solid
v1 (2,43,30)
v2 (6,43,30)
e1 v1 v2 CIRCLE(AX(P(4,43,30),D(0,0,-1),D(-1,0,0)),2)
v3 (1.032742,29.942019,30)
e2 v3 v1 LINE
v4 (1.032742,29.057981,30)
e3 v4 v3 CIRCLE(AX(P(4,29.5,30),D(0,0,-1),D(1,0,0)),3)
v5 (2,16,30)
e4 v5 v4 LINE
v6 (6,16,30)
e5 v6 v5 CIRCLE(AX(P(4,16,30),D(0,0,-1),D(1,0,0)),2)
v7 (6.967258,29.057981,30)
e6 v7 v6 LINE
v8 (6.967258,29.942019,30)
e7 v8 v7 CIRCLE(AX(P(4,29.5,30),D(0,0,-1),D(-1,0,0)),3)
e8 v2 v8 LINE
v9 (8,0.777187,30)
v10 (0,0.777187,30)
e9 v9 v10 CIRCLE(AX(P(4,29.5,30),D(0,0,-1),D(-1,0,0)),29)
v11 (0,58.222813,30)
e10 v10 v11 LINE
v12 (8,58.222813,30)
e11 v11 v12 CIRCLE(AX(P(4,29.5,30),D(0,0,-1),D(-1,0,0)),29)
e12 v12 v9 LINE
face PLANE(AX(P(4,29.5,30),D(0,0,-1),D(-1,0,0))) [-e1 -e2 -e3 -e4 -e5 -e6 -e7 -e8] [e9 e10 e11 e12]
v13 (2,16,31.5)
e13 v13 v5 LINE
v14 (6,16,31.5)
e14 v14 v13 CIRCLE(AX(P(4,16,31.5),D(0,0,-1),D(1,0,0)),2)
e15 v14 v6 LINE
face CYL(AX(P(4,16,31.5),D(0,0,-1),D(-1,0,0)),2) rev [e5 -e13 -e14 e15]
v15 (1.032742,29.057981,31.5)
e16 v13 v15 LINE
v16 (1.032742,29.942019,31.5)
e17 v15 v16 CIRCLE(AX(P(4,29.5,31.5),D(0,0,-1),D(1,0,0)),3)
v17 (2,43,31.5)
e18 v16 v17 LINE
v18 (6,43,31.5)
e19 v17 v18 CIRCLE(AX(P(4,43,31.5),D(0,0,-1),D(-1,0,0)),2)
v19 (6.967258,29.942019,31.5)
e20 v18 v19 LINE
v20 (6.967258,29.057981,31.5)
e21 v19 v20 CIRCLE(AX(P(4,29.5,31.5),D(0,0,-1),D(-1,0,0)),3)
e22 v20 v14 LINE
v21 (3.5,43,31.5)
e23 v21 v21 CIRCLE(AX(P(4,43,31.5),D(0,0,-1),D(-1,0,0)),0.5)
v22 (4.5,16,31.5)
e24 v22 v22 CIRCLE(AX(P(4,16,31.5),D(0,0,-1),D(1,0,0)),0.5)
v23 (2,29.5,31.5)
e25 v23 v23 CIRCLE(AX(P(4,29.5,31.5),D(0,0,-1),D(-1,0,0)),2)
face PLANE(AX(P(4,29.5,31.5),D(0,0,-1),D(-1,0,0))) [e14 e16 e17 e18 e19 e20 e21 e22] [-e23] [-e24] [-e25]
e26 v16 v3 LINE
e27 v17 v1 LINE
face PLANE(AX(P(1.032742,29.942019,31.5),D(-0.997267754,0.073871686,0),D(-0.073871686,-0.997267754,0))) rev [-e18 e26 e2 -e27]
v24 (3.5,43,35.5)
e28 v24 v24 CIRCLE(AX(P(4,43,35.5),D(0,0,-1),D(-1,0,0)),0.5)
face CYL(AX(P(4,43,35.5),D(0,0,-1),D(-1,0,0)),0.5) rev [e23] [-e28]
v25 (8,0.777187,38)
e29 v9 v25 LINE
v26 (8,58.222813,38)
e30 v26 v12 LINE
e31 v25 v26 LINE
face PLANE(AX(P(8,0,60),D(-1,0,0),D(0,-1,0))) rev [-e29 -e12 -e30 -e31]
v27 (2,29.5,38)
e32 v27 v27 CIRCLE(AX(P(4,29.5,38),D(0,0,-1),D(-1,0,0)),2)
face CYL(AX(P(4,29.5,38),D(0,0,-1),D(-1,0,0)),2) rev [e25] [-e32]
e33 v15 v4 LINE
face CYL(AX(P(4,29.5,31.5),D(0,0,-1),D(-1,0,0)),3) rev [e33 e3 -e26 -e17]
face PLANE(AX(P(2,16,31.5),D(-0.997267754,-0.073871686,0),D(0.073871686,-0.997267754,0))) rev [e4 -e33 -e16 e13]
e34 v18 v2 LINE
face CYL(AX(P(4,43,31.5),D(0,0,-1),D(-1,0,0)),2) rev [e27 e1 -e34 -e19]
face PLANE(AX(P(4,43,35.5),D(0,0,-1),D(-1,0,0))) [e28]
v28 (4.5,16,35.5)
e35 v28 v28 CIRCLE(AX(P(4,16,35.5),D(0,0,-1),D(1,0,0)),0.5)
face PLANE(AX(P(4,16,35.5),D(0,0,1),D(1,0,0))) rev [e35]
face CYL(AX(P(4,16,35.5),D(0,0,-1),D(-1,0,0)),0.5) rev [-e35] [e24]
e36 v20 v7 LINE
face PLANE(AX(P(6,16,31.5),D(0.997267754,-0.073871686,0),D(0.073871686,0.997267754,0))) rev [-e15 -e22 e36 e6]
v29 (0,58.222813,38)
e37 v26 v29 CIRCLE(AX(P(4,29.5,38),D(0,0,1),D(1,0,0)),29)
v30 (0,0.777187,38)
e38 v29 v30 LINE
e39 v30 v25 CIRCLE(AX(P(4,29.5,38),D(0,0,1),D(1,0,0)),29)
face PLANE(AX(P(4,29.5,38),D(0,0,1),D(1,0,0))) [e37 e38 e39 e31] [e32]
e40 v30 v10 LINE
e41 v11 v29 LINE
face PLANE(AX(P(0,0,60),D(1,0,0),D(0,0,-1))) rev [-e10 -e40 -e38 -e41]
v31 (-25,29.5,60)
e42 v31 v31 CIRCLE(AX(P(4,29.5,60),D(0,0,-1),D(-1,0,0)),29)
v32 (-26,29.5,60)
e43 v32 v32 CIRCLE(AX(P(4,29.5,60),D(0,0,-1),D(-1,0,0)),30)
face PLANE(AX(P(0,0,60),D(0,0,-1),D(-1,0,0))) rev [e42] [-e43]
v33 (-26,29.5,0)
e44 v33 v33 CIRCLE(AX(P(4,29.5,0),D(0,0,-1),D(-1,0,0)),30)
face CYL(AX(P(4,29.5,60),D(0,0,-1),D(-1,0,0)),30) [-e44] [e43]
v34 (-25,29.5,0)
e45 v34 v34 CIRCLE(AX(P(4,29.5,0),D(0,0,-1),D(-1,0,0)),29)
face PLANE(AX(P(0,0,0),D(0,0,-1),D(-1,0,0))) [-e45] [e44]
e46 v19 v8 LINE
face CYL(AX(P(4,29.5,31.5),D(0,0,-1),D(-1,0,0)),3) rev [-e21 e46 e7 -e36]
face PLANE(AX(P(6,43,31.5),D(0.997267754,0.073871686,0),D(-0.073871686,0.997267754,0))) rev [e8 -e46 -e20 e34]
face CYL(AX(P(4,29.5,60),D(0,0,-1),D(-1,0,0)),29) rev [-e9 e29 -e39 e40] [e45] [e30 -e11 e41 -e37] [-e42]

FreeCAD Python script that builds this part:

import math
import FreeCAD as App
import Part
import Sketcher
Q = App.Units.Quantity


def add_polygon(sketch, points):
    """Adds a closed chain of lines whose ends are joined by coincident constraints."""
    first, n = sketch.GeometryCount, len(points)
    for a, b in zip(points, points[1:] + points[:1]):
        sketch.addGeometry(Part.LineSegment(App.Vector(*a, 0), App.Vector(*b, 0)), False)
    for i in range(n):
        sketch.addConstraint(Sketcher.Constraint("Coincident", first + i, 2, first + (i + 1) % n, 1))

doc = App.newDocument("Part")
params = doc.addObject("Spreadsheet::Sheet", "Params")
for row, (alias, value) in enumerate([
    ("sketch1_width", "8 mm"),
    ("sketch1_height", "59 mm"),
    ("pad1_length", "60 mm"),
    ("sketch2_diameter", "60 mm"),
    ("sketch2_diameter2", "58 mm"),
    ("pad2_length", "60 mm"),
    ("sketch3_diameter", "58 mm"),
    ("pocket1_length", "30 mm"),
    ("sketch4_radius", "3 mm"),
    ("sketch4_radius2", "2 mm"),
    ("pocket2_length", "1.5 mm"),
    ("sketch5_diameter", "58 mm"),
    ("pocket3_length", "22 mm"),
    ("sketch6_diameter", "4 mm"),
    ("pocket4_length", "6.5 mm"),
    ("sketch7_diameter", "1 mm"),
    ("pocket5_length", "4 mm"),
], start=1):
    params.set(f"A{row}", alias)
    params.set(f"B{row}", "=" + value)
    params.setAlias(f"B{row}", alias)

body = doc.addObject("PartDesign::Body", "Body")

# Sketch on XY plane
sketch1 = doc.addObject("Sketcher::SketchObject", "Sketch")
body.addObject(sketch1)
sketch1.AttachmentSupport = (doc.XY_Plane, [""])
sketch1.MapMode = "FlatFace"
add_polygon(sketch1, [(0, 59), (0, 0), (8, 0), (8, 59)])  # lines 0-3
sketch1.addConstraint([
    Sketcher.Constraint("Vertical", 0),
    Sketcher.Constraint("Horizontal", 1),
    Sketcher.Constraint("Vertical", 2),
    Sketcher.Constraint("Horizontal", 3),
    Sketcher.Constraint("Coincident", 0, 2, -1, 1),
    Sketcher.Constraint("DistanceX", 1, 1, 1, 2, Q("8 mm")),
    Sketcher.Constraint("DistanceY", 0, 2, 0, 1, Q("59 mm")),
])
sketch1.setExpression("Constraints[9]", "Params.sketch1_width")
sketch1.setExpression("Constraints[10]", "Params.sketch1_height")
pad1 = doc.addObject("PartDesign::Pad", "Pad")
body.addObject(pad1)
pad1.Profile = sketch1
pad1.setExpression("Length", "Params.pad1_length")

# Sketch on XY plane
sketch2 = doc.addObject("Sketcher::SketchObject", "Sketch001")
body.addObject(sketch2)
sketch2.AttachmentSupport = (doc.XY_Plane, [""])
sketch2.MapMode = "FlatFace"
sketch2.addGeometry([
    Part.Circle(App.Vector(4, 29.5, 0), App.Vector(0, 0, 1), 30),
    Part.Circle(App.Vector(4, 29.5, 0), App.Vector(0, 0, 1), 29),
], False)
sketch2.addConstraint([
    Sketcher.Constraint("Coincident", 1, 3, 0, 3),
    Sketcher.Constraint("Diameter", 0, Q("60 mm")),
    Sketcher.Constraint("Diameter", 1, Q("58 mm")),
    Sketcher.Constraint("DistanceX", -1, 1, 0, 3, Q("4 mm")),
    Sketcher.Constraint("DistanceY", -1, 1, 0, 3, Q("29.5 mm")),
])
sketch2.setExpression("Constraints[1]", "Params.sketch2_diameter")
sketch2.setExpression("Constraints[2]", "Params.sketch2_diameter2")
pad2 = doc.addObject("PartDesign::Pad", "Pad001")
body.addObject(pad2)
pad2.Profile = sketch2
pad2.setExpression("Length", "Params.pad2_length")

# Sketch on XY plane
sketch3 = doc.addObject("Sketcher::SketchObject", "Sketch002")
body.addObject(sketch3)
sketch3.AttachmentSupport = (doc.XY_Plane, [""])
sketch3.MapMode = "FlatFace"
sketch3.addGeometry(Part.Circle(App.Vector(4, 29.5, 0), App.Vector(0, 0, 1), 29), False)
sketch3.addConstraint([
    Sketcher.Constraint("Diameter", 0, Q("58 mm")),
    Sketcher.Constraint("DistanceX", -1, 1, 0, 3, Q("4 mm")),
    Sketcher.Constraint("DistanceY", -1, 1, 0, 3, Q("29.5 mm")),
])
sketch3.setExpression("Constraints[0]", "Params.sketch3_diameter")
pocket1 = doc.addObject("PartDesign::Pocket", "Pocket")
body.addObject(pocket1)
pocket1.Profile = sketch3
pocket1.setExpression("Length", "Params.pocket1_length")
pocket1.Reversed = True

# Sketch on XY plane
sketch4 = doc.addObject("Sketcher::SketchObject", "Sketch003")
body.addObject(sketch4)
sketch4.AttachmentSupport = (doc.XY_Plane, [""])
sketch4.MapMode = "FlatFace"
sketch4.AttachmentOffset = App.Placement(App.Vector(0, 0, 30), App.Rotation())
sketch4.addGeometry([
    Part.LineSegment(App.Vector(6, 43, 0), App.Vector(6.967258, 29.942019, 0)),  # 0
    Part.ArcOfCircle(Part.Circle(App.Vector(4, 29.5, 0), App.Vector(0, 0, 1), 3), math.radians(-8.47279), math.radians(8.47279)),  # 1
    Part.LineSegment(App.Vector(6.967258, 29.057981, 0), App.Vector(6, 16, 0)),  # 2
    Part.ArcOfCircle(Part.Circle(App.Vector(4, 16, 0), App.Vector(0, 0, 1), 2), math.radians(180), math.radians(360)),  # 3
    Part.LineSegment(App.Vector(2, 16, 0), App.Vector(1.032742, 29.057981, 0)),  # 4
    Part.ArcOfCircle(Part.Circle(App.Vector(4, 29.5, 0), App.Vector(0, 0, 1), 3), math.radians(171.52721), math.radians(188.47279)),  # 5
    Part.LineSegment(App.Vector(1.032742, 29.942019, 0), App.Vector(2, 43, 0)),  # 6
    Part.ArcOfCircle(Part.Circle(App.Vector(4, 43, 0), App.Vector(0, 0, 1), 2), math.radians(0), math.radians(180)),  # 7
], False)
sketch4.addConstraint([
    Sketcher.Constraint("Coincident", 0, 2, 1, 2),
    Sketcher.Constraint("Coincident", 1, 1, 2, 1),
    Sketcher.Constraint("Coincident", 2, 2, 3, 2),
    Sketcher.Constraint("Coincident", 3, 1, 4, 1),
    Sketcher.Constraint("Coincident", 4, 2, 5, 2),
    Sketcher.Constraint("Coincident", 5, 1, 6, 1),
    Sketcher.Constraint("Coincident", 6, 2, 7, 2),
    Sketcher.Constraint("Coincident", 7, 1, 0, 1),
    Sketcher.Constraint("Coincident", 5, 3, 1, 3),
    Sketcher.Constraint("Equal", 1, 5),
    Sketcher.Constraint("Equal", 3, 7),
    Sketcher.Constraint("Parallel", 0, 4),
    Sketcher.Constraint("Parallel", 2, 6),
    Sketcher.Constraint("Horizontal", 3, 3, 2, 2),
    Sketcher.Constraint("Horizontal", 2, 2, 3, 1),
    Sketcher.Constraint("Horizontal", 1, 1, 4, 2),
    Sketcher.Constraint("Horizontal", 0, 2, 5, 1),
    Sketcher.Constraint("Horizontal", 7, 3, 6, 2),
    Sketcher.Constraint("Horizontal", 6, 2, 7, 1),
    Sketcher.Constraint("Vertical", 1, 3, 3, 3),
    Sketcher.Constraint("Vertical", 0, 2, 1, 1),
    Sketcher.Constraint("Radius", 1, Q("3 mm")),
    Sketcher.Constraint("Radius", 3, Q("2 mm")),
    Sketcher.Constraint("DistanceX", -1, 1, 1, 3, Q("4 mm")),
    Sketcher.Constraint("DistanceY", -1, 1, 3, 3, Q("16 mm")),
    Sketcher.Constraint("DistanceY", -1, 1, 7, 3, Q("43 mm")),
    Sketcher.Constraint("DistanceY", -1, 1, 0, 2, Q("29.942019 mm")),
])
sketch4.setExpression("Constraints[21]", "Params.sketch4_radius")
sketch4.setExpression("Constraints[22]", "Params.sketch4_radius2")
pocket2 = doc.addObject("PartDesign::Pocket", "Pocket001")
body.addObject(pocket2)
pocket2.Profile = sketch4
pocket2.setExpression("Length", "Params.pocket2_length")
pocket2.Reversed = True

# Sketch on XY plane
sketch5 = doc.addObject("Sketcher::SketchObject", "Sketch004")
body.addObject(sketch5)
sketch5.AttachmentSupport = (doc.XY_Plane, [""])
sketch5.MapMode = "FlatFace"
sketch5.AttachmentOffset = App.Placement(App.Vector(0, 0, 60), App.Rotation())
sketch5.addGeometry(Part.Circle(App.Vector(4, 29.5, 0), App.Vector(0, 0, 1), 29), False)
sketch5.addConstraint([
    Sketcher.Constraint("Diameter", 0, Q("58 mm")),
    Sketcher.Constraint("DistanceX", -1, 1, 0, 3, Q("4 mm")),
    Sketcher.Constraint("DistanceY", -1, 1, 0, 3, Q("29.5 mm")),
])
sketch5.setExpression("Constraints[0]", "Params.sketch5_diameter")
pocket3 = doc.addObject("PartDesign::Pocket", "Pocket002")
body.addObject(pocket3)
pocket3.Profile = sketch5
pocket3.setExpression("Length", "Params.pocket3_length")

# Sketch on XY plane
sketch6 = doc.addObject("Sketcher::SketchObject", "Sketch005")
body.addObject(sketch6)
sketch6.AttachmentSupport = (doc.XY_Plane, [""])
sketch6.MapMode = "FlatFace"
sketch6.AttachmentOffset = App.Placement(App.Vector(0, 0, 31.5), App.Rotation())
sketch6.addGeometry(Part.Circle(App.Vector(4, 29.5, 0), App.Vector(0, 0, 1), 2), False)
sketch6.addConstraint([
    Sketcher.Constraint("Diameter", 0, Q("4 mm")),
    Sketcher.Constraint("DistanceX", -1, 1, 0, 3, Q("4 mm")),
    Sketcher.Constraint("DistanceY", -1, 1, 0, 3, Q("29.5 mm")),
])
sketch6.setExpression("Constraints[0]", "Params.sketch6_diameter")
pocket4 = doc.addObject("PartDesign::Pocket", "Pocket003")
body.addObject(pocket4)
pocket4.Profile = sketch6
pocket4.setExpression("Length", "Params.pocket4_length")
pocket4.Reversed = True

# Sketch on XY plane
sketch7 = doc.addObject("Sketcher::SketchObject", "Sketch006")
body.addObject(sketch7)
sketch7.AttachmentSupport = (doc.XY_Plane, [""])
sketch7.MapMode = "FlatFace"
sketch7.AttachmentOffset = App.Placement(App.Vector(0, 0, 31.5), App.Rotation())
sketch7.addGeometry([
    Part.Circle(App.Vector(4, 43, 0), App.Vector(0, 0, 1), 0.5),
    Part.Circle(App.Vector(4, 16, 0), App.Vector(0, 0, 1), 0.5),
], False)
sketch7.addConstraint([
    Sketcher.Constraint("Equal", 0, 1),
    Sketcher.Constraint("Vertical", 0, 3, 1, 3),
    Sketcher.Constraint("Diameter", 0, Q("1 mm")),
    Sketcher.Constraint("DistanceX", -1, 1, 0, 3, Q("4 mm")),
    Sketcher.Constraint("DistanceY", -1, 1, 0, 3, Q("43 mm")),
    Sketcher.Constraint("DistanceY", -1, 1, 1, 3, Q("16 mm")),
])
sketch7.setExpression("Constraints[2]", "Params.sketch7_diameter")
pocket5 = doc.addObject("PartDesign::Pocket", "Pocket004")
body.addObject(pocket5)
pocket5.Profile = sketch7
pocket5.setExpression("Length", "Params.pocket5_length")
pocket5.Reversed = True

doc.recompute()
